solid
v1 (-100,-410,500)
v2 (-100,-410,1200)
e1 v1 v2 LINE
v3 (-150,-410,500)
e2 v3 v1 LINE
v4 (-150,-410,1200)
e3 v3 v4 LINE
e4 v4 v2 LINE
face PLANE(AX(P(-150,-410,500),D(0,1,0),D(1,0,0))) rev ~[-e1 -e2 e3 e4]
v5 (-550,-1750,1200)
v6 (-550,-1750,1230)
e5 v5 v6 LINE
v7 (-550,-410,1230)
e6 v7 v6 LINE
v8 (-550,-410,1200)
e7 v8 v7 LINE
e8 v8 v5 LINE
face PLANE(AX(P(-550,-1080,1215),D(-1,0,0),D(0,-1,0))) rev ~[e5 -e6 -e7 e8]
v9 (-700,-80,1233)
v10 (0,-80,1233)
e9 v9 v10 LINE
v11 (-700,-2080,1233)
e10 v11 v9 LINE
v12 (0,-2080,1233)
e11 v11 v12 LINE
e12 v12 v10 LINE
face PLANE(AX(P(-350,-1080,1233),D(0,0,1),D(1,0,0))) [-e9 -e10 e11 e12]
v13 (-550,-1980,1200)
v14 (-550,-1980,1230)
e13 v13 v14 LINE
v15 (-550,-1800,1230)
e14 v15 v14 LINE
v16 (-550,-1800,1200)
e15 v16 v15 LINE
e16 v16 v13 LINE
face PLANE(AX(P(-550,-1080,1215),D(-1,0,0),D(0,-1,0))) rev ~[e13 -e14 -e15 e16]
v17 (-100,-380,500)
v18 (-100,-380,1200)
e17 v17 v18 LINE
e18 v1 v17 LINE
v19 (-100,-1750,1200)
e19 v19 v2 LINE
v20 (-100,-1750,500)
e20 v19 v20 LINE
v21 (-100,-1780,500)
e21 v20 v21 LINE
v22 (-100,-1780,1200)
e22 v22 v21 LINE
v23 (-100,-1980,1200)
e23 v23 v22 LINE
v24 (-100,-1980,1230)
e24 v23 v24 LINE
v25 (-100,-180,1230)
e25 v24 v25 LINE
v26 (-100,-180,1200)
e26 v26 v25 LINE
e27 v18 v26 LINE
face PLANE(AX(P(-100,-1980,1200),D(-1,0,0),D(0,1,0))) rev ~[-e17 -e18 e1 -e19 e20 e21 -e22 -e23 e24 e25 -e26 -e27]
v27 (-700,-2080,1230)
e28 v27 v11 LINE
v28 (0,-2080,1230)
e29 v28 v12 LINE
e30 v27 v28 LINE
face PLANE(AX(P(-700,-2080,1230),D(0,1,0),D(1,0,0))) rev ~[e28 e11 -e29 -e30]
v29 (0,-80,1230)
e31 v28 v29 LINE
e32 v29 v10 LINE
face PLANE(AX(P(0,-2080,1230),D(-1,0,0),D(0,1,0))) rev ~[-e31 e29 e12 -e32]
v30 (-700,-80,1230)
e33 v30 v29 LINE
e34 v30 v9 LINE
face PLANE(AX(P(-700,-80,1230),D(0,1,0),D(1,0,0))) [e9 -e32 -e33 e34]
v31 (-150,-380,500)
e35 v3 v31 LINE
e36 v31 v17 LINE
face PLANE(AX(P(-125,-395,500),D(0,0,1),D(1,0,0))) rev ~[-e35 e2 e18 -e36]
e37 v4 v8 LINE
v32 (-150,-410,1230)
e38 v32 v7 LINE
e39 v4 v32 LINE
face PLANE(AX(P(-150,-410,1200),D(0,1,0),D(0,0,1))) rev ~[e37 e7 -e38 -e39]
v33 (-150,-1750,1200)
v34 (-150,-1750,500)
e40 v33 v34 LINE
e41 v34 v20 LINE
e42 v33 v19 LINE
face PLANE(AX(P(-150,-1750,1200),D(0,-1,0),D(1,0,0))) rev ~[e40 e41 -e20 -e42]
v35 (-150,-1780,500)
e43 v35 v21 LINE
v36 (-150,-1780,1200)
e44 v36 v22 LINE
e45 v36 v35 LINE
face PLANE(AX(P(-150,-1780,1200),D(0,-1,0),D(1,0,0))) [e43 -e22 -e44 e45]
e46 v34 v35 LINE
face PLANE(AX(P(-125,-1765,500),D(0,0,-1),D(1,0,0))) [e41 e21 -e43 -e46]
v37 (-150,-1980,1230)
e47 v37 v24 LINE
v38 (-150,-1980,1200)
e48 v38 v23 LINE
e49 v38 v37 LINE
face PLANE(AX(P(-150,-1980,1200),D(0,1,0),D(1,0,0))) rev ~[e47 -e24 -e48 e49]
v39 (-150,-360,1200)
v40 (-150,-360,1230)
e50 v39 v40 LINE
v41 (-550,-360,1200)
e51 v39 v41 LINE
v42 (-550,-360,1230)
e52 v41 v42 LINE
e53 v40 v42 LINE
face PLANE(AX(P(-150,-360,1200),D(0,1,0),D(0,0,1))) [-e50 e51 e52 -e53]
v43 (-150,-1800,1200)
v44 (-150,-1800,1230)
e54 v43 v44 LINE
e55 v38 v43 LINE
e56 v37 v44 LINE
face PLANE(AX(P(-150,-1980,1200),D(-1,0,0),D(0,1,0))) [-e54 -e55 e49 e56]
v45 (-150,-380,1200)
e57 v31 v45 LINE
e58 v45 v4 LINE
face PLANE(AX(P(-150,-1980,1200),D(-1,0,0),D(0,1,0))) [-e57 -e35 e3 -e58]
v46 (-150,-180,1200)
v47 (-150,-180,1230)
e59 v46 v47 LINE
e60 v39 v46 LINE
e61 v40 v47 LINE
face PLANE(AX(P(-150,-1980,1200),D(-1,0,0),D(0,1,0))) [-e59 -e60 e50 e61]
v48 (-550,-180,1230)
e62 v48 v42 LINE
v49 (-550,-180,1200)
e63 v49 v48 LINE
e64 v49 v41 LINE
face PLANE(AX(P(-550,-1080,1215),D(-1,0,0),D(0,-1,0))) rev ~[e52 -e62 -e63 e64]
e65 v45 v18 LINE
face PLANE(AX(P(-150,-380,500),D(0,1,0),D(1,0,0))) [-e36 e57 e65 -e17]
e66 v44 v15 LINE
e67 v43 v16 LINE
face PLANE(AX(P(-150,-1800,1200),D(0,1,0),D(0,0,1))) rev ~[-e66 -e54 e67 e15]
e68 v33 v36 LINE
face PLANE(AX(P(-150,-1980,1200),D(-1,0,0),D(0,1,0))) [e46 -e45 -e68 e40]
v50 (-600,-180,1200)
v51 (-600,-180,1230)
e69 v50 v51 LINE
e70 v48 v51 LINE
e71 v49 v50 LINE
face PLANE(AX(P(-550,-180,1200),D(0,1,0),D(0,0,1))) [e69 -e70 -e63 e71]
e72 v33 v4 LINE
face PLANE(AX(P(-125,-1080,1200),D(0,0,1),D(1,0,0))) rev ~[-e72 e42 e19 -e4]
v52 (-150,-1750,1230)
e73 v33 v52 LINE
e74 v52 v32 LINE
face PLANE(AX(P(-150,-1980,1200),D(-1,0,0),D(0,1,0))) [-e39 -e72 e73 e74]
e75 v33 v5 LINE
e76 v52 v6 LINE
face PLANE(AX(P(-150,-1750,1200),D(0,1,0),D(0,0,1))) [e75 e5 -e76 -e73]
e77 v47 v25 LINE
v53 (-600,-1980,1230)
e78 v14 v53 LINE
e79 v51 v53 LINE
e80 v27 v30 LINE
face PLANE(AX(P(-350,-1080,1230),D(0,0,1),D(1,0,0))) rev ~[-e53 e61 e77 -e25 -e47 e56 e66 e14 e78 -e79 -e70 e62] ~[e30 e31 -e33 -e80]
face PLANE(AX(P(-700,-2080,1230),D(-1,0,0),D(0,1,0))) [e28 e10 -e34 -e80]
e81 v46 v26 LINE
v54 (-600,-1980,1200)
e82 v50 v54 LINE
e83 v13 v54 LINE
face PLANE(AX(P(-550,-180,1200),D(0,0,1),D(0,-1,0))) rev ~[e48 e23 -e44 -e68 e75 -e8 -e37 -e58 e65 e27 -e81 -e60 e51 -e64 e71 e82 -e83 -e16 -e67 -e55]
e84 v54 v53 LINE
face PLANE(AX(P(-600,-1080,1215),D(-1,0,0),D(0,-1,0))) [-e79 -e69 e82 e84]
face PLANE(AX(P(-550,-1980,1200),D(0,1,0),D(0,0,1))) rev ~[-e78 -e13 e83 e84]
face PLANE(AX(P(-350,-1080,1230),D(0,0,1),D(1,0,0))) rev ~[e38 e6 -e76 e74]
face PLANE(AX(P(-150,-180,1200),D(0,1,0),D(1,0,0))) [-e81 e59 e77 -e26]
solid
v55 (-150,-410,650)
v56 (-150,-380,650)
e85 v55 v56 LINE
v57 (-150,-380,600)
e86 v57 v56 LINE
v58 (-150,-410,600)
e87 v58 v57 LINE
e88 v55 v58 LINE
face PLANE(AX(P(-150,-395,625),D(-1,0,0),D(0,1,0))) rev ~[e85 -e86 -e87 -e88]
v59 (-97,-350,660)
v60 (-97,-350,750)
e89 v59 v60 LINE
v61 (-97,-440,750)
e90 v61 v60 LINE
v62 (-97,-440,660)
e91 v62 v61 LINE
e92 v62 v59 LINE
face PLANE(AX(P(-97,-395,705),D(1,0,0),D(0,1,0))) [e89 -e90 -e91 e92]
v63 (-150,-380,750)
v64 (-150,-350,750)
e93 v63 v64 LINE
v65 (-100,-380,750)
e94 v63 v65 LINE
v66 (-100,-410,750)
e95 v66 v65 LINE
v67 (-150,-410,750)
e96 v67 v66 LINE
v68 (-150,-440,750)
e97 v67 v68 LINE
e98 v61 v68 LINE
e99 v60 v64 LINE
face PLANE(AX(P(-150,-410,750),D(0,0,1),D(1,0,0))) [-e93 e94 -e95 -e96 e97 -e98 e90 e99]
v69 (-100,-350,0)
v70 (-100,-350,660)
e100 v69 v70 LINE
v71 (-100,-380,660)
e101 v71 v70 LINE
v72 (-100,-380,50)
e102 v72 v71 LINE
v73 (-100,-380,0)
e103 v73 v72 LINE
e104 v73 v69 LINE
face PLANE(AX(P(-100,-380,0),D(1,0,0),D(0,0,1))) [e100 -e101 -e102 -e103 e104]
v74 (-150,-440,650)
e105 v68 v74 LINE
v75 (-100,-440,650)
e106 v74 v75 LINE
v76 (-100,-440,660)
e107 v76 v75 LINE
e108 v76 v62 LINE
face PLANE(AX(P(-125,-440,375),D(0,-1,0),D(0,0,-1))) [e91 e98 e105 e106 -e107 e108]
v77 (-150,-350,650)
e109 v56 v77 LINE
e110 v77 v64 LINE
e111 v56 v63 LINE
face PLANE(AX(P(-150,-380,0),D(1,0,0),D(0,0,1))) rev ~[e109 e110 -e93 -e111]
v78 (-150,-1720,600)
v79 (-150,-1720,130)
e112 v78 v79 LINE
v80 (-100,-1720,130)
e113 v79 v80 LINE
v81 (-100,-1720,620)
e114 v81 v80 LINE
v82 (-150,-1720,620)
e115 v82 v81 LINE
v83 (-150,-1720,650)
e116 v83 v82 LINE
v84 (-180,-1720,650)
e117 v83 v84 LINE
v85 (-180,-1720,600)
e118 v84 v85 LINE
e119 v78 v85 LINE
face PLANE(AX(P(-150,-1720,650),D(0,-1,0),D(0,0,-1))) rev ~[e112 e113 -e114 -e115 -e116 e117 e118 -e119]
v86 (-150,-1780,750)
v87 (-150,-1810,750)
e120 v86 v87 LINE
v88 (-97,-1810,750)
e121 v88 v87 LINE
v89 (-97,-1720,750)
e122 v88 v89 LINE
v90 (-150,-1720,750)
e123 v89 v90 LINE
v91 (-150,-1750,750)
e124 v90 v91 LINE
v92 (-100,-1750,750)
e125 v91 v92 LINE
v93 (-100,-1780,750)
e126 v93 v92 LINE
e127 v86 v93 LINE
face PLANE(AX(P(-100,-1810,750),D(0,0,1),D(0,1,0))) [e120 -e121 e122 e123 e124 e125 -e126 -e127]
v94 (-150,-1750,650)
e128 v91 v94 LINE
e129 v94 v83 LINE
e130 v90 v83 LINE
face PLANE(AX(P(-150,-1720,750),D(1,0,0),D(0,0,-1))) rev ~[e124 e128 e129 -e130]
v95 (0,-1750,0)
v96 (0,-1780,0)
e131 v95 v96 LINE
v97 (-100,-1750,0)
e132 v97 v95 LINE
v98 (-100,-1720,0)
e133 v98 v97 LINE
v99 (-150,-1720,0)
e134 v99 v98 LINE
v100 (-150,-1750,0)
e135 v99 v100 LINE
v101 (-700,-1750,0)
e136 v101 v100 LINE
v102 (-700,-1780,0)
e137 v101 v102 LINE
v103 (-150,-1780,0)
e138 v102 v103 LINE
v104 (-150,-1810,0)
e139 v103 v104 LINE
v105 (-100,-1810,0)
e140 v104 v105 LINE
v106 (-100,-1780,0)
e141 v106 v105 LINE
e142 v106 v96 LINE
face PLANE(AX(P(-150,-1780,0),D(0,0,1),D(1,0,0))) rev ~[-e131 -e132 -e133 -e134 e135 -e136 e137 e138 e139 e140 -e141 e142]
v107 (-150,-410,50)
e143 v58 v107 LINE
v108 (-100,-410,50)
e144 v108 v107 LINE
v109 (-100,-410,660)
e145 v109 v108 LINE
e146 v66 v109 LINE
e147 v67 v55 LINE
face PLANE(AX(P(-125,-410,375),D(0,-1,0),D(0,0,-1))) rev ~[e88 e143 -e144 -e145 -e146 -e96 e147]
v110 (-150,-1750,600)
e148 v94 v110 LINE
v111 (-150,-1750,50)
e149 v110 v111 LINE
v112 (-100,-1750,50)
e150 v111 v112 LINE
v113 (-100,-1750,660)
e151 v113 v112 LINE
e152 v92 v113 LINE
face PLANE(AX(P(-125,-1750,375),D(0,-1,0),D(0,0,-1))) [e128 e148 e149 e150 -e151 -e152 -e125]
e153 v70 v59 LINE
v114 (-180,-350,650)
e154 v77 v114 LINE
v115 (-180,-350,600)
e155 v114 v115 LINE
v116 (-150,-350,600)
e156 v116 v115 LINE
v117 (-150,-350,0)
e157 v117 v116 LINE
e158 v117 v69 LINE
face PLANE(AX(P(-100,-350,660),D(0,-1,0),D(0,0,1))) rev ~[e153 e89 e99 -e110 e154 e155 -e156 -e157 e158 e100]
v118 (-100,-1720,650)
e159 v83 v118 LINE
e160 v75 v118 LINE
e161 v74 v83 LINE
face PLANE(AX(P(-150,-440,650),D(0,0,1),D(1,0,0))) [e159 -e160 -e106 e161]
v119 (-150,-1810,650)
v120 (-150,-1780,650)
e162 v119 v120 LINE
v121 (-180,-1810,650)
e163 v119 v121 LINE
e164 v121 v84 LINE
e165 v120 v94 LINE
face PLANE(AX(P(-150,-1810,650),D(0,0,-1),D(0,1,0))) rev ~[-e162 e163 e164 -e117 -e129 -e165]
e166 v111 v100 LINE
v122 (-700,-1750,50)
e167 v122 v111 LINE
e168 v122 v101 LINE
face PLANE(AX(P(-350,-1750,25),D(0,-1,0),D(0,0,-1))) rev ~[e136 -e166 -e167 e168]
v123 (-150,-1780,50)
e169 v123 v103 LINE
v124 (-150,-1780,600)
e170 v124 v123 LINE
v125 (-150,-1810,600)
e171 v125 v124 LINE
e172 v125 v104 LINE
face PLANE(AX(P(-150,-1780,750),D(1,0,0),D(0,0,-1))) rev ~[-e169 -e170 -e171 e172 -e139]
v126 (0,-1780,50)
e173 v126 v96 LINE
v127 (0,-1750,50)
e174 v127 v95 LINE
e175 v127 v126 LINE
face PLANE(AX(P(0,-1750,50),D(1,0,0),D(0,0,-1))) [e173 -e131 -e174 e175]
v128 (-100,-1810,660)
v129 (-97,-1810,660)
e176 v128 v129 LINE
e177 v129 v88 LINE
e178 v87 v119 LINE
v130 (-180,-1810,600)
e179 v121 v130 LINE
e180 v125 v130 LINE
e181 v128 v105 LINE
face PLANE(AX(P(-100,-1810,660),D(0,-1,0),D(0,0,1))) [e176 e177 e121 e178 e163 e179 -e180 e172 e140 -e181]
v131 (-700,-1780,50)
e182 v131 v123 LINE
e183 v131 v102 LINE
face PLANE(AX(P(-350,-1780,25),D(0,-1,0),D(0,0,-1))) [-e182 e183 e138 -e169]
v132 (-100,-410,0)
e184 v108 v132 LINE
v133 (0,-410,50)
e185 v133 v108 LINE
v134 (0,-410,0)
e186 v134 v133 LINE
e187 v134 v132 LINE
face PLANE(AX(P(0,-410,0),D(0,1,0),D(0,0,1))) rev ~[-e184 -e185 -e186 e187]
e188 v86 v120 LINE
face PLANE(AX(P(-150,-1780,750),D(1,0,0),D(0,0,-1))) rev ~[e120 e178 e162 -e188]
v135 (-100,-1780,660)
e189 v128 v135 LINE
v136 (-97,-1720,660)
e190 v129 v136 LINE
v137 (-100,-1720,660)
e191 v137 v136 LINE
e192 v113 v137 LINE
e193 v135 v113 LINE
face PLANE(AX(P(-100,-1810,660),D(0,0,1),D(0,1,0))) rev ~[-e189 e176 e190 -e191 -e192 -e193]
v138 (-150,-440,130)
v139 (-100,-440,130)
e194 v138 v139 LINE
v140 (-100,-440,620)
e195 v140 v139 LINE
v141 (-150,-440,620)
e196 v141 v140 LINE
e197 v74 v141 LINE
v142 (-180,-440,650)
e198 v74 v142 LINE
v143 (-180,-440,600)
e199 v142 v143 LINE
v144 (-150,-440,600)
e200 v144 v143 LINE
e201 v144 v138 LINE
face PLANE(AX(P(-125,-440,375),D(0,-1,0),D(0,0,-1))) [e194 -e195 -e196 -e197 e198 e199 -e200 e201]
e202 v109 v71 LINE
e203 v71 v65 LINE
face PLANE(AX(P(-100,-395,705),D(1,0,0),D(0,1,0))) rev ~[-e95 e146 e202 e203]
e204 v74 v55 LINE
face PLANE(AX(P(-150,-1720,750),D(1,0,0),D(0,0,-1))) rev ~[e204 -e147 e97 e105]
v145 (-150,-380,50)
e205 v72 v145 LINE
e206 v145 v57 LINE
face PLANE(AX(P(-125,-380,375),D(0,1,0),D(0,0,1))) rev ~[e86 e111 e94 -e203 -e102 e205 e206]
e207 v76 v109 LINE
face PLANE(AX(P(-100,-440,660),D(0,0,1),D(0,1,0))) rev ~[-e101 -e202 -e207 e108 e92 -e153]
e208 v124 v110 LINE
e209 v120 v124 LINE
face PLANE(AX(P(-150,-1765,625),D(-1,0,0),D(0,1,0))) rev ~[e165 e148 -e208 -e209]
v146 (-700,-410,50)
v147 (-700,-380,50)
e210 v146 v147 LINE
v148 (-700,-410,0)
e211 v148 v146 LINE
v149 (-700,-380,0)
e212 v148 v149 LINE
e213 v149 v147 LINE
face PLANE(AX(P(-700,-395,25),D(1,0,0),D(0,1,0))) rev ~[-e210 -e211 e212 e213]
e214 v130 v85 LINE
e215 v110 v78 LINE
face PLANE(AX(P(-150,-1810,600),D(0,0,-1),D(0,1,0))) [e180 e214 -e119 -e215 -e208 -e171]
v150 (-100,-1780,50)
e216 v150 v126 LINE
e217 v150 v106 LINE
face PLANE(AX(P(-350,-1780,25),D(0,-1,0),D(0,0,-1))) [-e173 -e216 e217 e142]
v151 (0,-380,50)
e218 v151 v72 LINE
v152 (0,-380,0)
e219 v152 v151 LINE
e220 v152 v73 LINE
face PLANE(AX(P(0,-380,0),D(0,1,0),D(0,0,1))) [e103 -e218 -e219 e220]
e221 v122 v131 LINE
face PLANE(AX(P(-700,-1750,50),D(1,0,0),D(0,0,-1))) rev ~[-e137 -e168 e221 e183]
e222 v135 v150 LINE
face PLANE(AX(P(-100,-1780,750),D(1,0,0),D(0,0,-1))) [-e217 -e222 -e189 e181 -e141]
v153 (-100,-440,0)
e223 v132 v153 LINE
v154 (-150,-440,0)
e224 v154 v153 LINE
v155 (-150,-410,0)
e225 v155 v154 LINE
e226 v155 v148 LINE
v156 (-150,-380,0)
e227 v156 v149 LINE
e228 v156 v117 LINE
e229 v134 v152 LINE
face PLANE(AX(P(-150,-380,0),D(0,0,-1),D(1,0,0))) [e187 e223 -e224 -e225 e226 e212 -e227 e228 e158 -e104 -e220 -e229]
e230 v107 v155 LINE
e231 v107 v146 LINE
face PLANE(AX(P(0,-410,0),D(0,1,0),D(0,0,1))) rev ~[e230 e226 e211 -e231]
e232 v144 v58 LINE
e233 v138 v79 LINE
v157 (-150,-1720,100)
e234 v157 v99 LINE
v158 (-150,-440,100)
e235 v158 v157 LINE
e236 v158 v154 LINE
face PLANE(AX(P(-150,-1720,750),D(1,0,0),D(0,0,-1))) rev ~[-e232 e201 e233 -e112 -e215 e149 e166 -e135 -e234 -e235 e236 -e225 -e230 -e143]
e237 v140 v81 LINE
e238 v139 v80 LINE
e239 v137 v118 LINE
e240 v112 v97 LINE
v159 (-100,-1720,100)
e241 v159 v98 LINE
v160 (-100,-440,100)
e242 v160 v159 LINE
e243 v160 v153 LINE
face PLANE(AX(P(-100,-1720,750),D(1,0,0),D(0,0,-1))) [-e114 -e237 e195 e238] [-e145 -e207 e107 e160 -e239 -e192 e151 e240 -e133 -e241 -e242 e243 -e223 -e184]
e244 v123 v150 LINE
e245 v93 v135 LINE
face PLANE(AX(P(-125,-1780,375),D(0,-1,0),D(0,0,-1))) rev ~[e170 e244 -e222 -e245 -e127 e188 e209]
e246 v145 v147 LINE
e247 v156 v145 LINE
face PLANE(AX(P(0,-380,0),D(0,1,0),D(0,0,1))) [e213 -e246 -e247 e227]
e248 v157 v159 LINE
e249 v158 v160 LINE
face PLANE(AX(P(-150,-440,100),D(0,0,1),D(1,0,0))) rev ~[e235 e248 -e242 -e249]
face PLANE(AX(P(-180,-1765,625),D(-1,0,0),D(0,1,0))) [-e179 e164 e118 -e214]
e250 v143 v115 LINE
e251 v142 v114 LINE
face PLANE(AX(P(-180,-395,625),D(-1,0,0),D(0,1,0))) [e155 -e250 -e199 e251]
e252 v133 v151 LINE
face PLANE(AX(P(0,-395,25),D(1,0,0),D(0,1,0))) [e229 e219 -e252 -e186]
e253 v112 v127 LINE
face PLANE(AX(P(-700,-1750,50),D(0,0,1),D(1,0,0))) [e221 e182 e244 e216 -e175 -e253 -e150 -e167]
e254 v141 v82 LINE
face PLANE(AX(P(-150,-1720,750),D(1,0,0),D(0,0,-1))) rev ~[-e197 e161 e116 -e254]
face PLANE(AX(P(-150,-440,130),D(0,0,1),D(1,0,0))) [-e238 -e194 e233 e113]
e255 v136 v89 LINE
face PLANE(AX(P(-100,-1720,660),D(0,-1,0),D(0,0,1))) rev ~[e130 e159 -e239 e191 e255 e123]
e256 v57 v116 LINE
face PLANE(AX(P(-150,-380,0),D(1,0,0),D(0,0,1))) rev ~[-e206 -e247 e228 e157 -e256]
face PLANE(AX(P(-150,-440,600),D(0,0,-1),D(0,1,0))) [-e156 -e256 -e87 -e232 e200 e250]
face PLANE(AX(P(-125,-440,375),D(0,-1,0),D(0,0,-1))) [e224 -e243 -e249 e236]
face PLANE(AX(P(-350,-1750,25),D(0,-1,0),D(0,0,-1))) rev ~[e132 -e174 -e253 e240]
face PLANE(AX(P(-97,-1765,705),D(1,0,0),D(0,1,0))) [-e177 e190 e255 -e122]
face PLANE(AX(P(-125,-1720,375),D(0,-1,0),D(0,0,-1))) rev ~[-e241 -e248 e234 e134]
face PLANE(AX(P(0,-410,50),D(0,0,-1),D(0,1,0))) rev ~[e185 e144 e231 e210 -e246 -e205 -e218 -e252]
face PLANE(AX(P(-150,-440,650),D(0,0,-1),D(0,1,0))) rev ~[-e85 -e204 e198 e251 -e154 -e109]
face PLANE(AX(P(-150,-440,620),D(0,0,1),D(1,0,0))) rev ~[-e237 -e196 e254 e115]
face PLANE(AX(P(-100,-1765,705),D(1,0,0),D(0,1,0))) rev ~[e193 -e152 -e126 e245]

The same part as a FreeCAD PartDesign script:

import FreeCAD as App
import Part
import Sketcher

V = App.Vector

doc = App.newDocument("Part")
body = doc.addObject("PartDesign::Body", "Body")

# Sketch on YZ plane
sketch1 = body.newObject("Sketcher::SketchObject", "Sketch")
sketch1.AttachmentSupport = (doc.getObject("YZ_Plane"), [""])
sketch1.MapMode = "FlatFace"
sketch1.addGeometry(Part.LineSegment(V(-410, 50, 0), V(-410, 0, 0)), False)
sketch1.addGeometry(Part.LineSegment(V(-410, 0, 0), V(-380, 0, 0)), False)
sketch1.addGeometry(Part.LineSegment(V(-380, 0, 0), V(-380, 50, 0)), False)
sketch1.addGeometry(Part.LineSegment(V(-380, 50, 0), V(-410, 50, 0)), False)
sketch1.addConstraint(Sketcher.Constraint("Coincident", 0, 2, 1, 1))
sketch1.addConstraint(Sketcher.Constraint("Coincident", 1, 2, 2, 1))
sketch1.addConstraint(Sketcher.Constraint("Coincident", 2, 2, 3, 1))
sketch1.addConstraint(Sketcher.Constraint("Coincident", 3, 2, 0, 1))
sketch1.addConstraint(Sketcher.Constraint("Vertical", 0))
sketch1.addConstraint(Sketcher.Constraint("Horizontal", 1))
sketch1.addConstraint(Sketcher.Constraint("Vertical", 2))
sketch1.addConstraint(Sketcher.Constraint("Horizontal", 3))
sketch1.addConstraint(Sketcher.Constraint("PointOnObject", 0, 2, -1))
sketch1.addConstraint(Sketcher.Constraint("DistanceX", 1, 1, 1, 2, 30.0))
sketch1.addConstraint(Sketcher.Constraint("DistanceY", 0, 2, 0, 1, 50.0))
sketch1.addConstraint(Sketcher.Constraint("DistanceX", 0, 2, -1, 1, 410.0))
pad1 = body.newObject("PartDesign::Pad", "Pad")
pad1.Profile = sketch1
pad1.Length = 700
pad1.Reversed = True

# Sketch on XZ plane
sketch2 = body.newObject("Sketcher::SketchObject", "Sketch001")
sketch2.AttachmentSupport = (doc.getObject("XZ_Plane"), [""])
sketch2.MapMode = "FlatFace"
sketch2.AttachmentOffset = App.Placement(V(0, 0, 410), App.Rotation())
sketch2.addGeometry(Part.LineSegment(V(-100, 750, 0), V(-150, 750, 0)), False)
sketch2.addGeometry(Part.LineSegment(V(-150, 750, 0), V(-150, 0, 0)), False)
sketch2.addGeometry(Part.LineSegment(V(-150, 0, 0), V(-100, 0, 0)), False)
sketch2.addGeometry(Part.LineSegment(V(-100, 0, 0), V(-100, 750, 0)), False)
sketch2.addConstraint(Sketcher.Constraint("Coincident", 0, 2, 1, 1))
sketch2.addConstraint(Sketcher.Constraint("Coincident", 1, 2, 2, 1))
sketch2.addConstraint(Sketcher.Constraint("Coincident", 2, 2, 3, 1))
sketch2.addConstraint(Sketcher.Constraint("Coincident", 3, 2, 0, 1))
sketch2.addConstraint(Sketcher.Constraint("Horizontal", 0))
sketch2.addConstraint(Sketcher.Constraint("Vertical", 1))
sketch2.addConstraint(Sketcher.Constraint("Horizontal", 2))
sketch2.addConstraint(Sketcher.Constraint("Vertical", 3))
sketch2.addConstraint(Sketcher.Constraint("PointOnObject", 1, 2, -1))
sketch2.addConstraint(Sketcher.Constraint("DistanceX", 0, 2, 0, 1, 50.0))
sketch2.addConstraint(Sketcher.Constraint("DistanceY", 1, 2, 1, 1, 750.0))
sketch2.addConstraint(Sketcher.Constraint("DistanceX", 0, 2, -1, 1, 150.0))
pad2 = body.newObject("PartDesign::Pad", "Pad001")
pad2.Profile = sketch2
pad2.Length = 30

# Sketch on XZ plane
sketch3 = body.newObject("Sketcher::SketchObject", "Sketch002")
sketch3.AttachmentSupport = (doc.getObject("XZ_Plane"), [""])
sketch3.MapMode = "FlatFace"
sketch3.AttachmentOffset = App.Placement(V(0, 0, 380), App.Rotation())
sketch3.addGeometry(Part.LineSegment(V(-100, 0, 0), V(-150, 0, 0)), False)
sketch3.addGeometry(Part.LineSegment(V(-150, 0, 0), V(-150, 750, 0)), False)
sketch3.addGeometry(Part.LineSegment(V(-150, 750, 0), V(-100, 750, 0)), False)
sketch3.addGeometry(Part.LineSegment(V(-100, 750, 0), V(-100, 0, 0)), False)
sketch3.addConstraint(Sketcher.Constraint("Coincident", 0, 2, 1, 1))
sketch3.addConstraint(Sketcher.Constraint("Coincident", 1, 2, 2, 1))
sketch3.addConstraint(Sketcher.Constraint("Coincident", 2, 2, 3, 1))
sketch3.addConstraint(Sketcher.Constraint("Coincident", 3, 2, 0, 1))
sketch3.addConstraint(Sketcher.Constraint("Horizontal", 0))
sketch3.addConstraint(Sketcher.Constraint("Vertical", 1))
sketch3.addConstraint(Sketcher.Constraint("Horizontal", 2))
sketch3.addConstraint(Sketcher.Constraint("Vertical", 3))
sketch3.addConstraint(Sketcher.Constraint("PointOnObject", 0, 2, -1))
sketch3.addConstraint(Sketcher.Constraint("DistanceX", 0, 2, 0, 1, 50.0))
sketch3.addConstraint(Sketcher.Constraint("DistanceY", 1, 1, 1, 2, 750.0))
sketch3.addConstraint(Sketcher.Constraint("DistanceX", 0, 2, -1, 1, 150.0))
pad3 = body.newObject("PartDesign::Pad", "Pad002")
pad3.Profile = sketch3
pad3.Length = 30
pad3.Reversed = True

# Sketch on XZ plane
sketch4 = body.newObject("Sketcher::SketchObject", "Sketch003")
sketch4.AttachmentSupport = (doc.getObject("XZ_Plane"), [""])
sketch4.MapMode = "FlatFace"
sketch4.AttachmentOffset = App.Placement(V(0, 0, 440), App.Rotation())
sketch4.addGeometry(Part.LineSegment(V(-100, 130, 0), V(-150, 130, 0)), False)
sketch4.addGeometry(Part.LineSegment(V(-150, 130, 0), V(-150, 100, 0)), False)
sketch4.addGeometry(Part.LineSegment(V(-150, 100, 0), V(-100, 100, 0)), False)
sketch4.addGeometry(Part.LineSegment(V(-100, 100, 0), V(-100, 130, 0)), False)
sketch4.addGeometry(Part.LineSegment(V(-100, 650, 0), V(-150, 650, 0)), False)
sketch4.addGeometry(Part.LineSegment(V(-150, 650, 0), V(-150, 620, 0)), False)
sketch4.addGeometry(Part.LineSegment(V(-150, 620, 0), V(-100, 620, 0)), False)
sketch4.addGeometry(Part.LineSegment(V(-100, 620, 0), V(-100, 650, 0)), False)
sketch4.addConstraint(Sketcher.Constraint("Coincident", 0, 2, 1, 1))
sketch4.addConstraint(Sketcher.Constraint("Coincident", 1, 2, 2, 1))
sketch4.addConstraint(Sketcher.Constraint("Coincident", 2, 2, 3, 1))
sketch4.addConstraint(Sketcher.Constraint("Coincident", 3, 2, 0, 1))
sketch4.addConstraint(Sketcher.Constraint("Coincident", 4, 2, 5, 1))
sketch4.addConstraint(Sketcher.Constraint("Coincident", 5, 2, 6, 1))
sketch4.addConstraint(Sketcher.Constraint("Coincident", 6, 2, 7, 1))
sketch4.addConstraint(Sketcher.Constraint("Coincident", 7, 2, 4, 1))
sketch4.addConstraint(Sketcher.Constraint("Horizontal", 0))
sketch4.addConstraint(Sketcher.Constraint("Vertical", 1))
sketch4.addConstraint(Sketcher.Constraint("Horizontal", 2))
sketch4.addConstraint(Sketcher.Constraint("Vertical", 3))
sketch4.addConstraint(Sketcher.Constraint("Horizontal", 4))
sketch4.addConstraint(Sketcher.Constraint("Vertical", 5))
sketch4.addConstraint(Sketcher.Constraint("Horizontal", 6))
sketch4.addConstraint(Sketcher.Constraint("Vertical", 7))
sketch4.addConstraint(Sketcher.Constraint("Vertical", 1, 2, 4, 2))
sketch4.addConstraint(Sketcher.Constraint("Vertical", 3, 2, 6, 2))
sketch4.addConstraint(Sketcher.Constraint("Equal", 3, 5))
sketch4.addConstraint(Sketcher.Constraint("DistanceX", 0, 2, 0, 1, 50.0))
sketch4.addConstraint(Sketcher.Constraint("DistanceY", 1, 2, 1, 1, 30.0))
sketch4.addConstraint(Sketcher.Constraint("DistanceX", 0, 2, -1, 1, 150.0))
sketch4.addConstraint(Sketcher.Constraint("DistanceY", -1, 1, 0, 2, 130.0))
sketch4.addConstraint(Sketcher.Constraint("DistanceY", -1, 1, 4, 2, 650.0))
pad4 = body.newObject("PartDesign::Pad", "Pad003")
pad4.Profile = sketch4
pad4.Length = 1280

# Sketch on XZ plane
sketch5 = body.newObject("Sketcher::SketchObject", "Sketch004")
sketch5.AttachmentSupport = (doc.getObject("XZ_Plane"), [""])
sketch5.MapMode = "FlatFace"
sketch5.AttachmentOffset = App.Placement(V(0, 0, 1720), App.Rotation())
sketch5.addGeometry(Part.LineSegment(V(-100, 750, 0), V(-150, 750, 0)), False)
sketch5.addGeometry(Part.LineSegment(V(-150, 750, 0), V(-150, 0, 0)), False)
sketch5.addGeometry(Part.LineSegment(V(-150, 0, 0), V(-100, 0, 0)), False)
sketch5.addGeometry(Part.LineSegment(V(-100, 0, 0), V(-100, 750, 0)), False)
sketch5.addConstraint(Sketcher.Constraint("Coincident", 0, 2, 1, 1))
sketch5.addConstraint(Sketcher.Constraint("Coincident", 1, 2, 2, 1))
sketch5.addConstraint(Sketcher.Constraint("Coincident", 2, 2, 3, 1))
sketch5.addConstraint(Sketcher.Constraint("Coincident", 3, 2, 0, 1))
sketch5.addConstraint(Sketcher.Constraint("Horizontal", 0))
sketch5.addConstraint(Sketcher.Constraint("Vertical", 1))
sketch5.addConstraint(Sketcher.Constraint("Horizontal", 2))
sketch5.addConstraint(Sketcher.Constraint("Vertical", 3))
sketch5.addConstraint(Sketcher.Constraint("PointOnObject", 1, 2, -1))
sketch5.addConstraint(Sketcher.Constraint("DistanceX", 0, 2, 0, 1, 50.0))
sketch5.addConstraint(Sketcher.Constraint("DistanceY", 1, 2, 1, 1, 750.0))
sketch5.addConstraint(Sketcher.Constraint("DistanceX", 0, 2, -1, 1, 150.0))
pad5 = body.newObject("PartDesign::Pad", "Pad004")
pad5.Profile = sketch5
pad5.Length = 30

# Sketch on XZ plane
sketch6 = body.newObject("Sketcher::SketchObject", "Sketch005")
sketch6.AttachmentSupport = (doc.getObject("XZ_Plane"), [""])
sketch6.MapMode = "FlatFace"
sketch6.AttachmentOffset = App.Placement(V(0, 0, 1750), App.Rotation())
sketch6.addGeometry(Part.LineSegment(V(0, 50, 0), V(-700, 50, 0)), False)
sketch6.addGeometry(Part.LineSegment(V(-700, 50, 0), V(-700, 0, 0)), False)
sketch6.addGeometry(Part.LineSegment(V(-700, 0, 0), V(0, 0, 0)), False)
sketch6.addGeometry(Part.LineSegment(V(0, 0, 0), V(0, 50, 0)), False)
sketch6.addConstraint(Sketcher.Constraint("Coincident", 0, 2, 1, 1))
sketch6.addConstraint(Sketcher.Constraint("Coincident", 1, 2, 2, 1))
sketch6.addConstraint(Sketcher.Constraint("Coincident", 2, 2, 3, 1))
sketch6.addConstraint(Sketcher.Constraint("Coincident", 3, 2, 0, 1))
sketch6.addConstraint(Sketcher.Constraint("Horizontal", 0))
sketch6.addConstraint(Sketcher.Constraint("Vertical", 1))
sketch6.addConstraint(Sketcher.Constraint("Horizontal", 2))
sketch6.addConstraint(Sketcher.Constraint("Vertical", 3))
sketch6.addConstraint(Sketcher.Constraint("Coincident", 2, 2, -1, 1))
sketch6.addConstraint(Sketcher.Constraint("DistanceX", 0, 2, 0, 1, 700.0))
sketch6.addConstraint(Sketcher.Constraint("DistanceY", 1, 2, 1, 1, 50.0))
pad6 = body.newObject("PartDesign::Pad", "Pad005")
pad6.Profile = sketch6
pad6.Length = 30

# Sketch on XZ plane
sketch7 = body.newObject("Sketcher::SketchObject", "Sketch006")
sketch7.AttachmentSupport = (doc.getObject("XZ_Plane"), [""])
sketch7.MapMode = "FlatFace"
sketch7.AttachmentOffset = App.Placement(V(0, 0, 1780), App.Rotation())
sketch7.addGeometry(Part.LineSegment(V(-100, 750, 0), V(-150, 750, 0)), False)
sketch7.addGeometry(Part.LineSegment(V(-150, 750, 0), V(-150, 0, 0)), False)
sketch7.addGeometry(Part.LineSegment(V(-150, 0, 0), V(-100, 0, 0)), False)
sketch7.addGeometry(Part.LineSegment(V(-100, 0, 0), V(-100, 750, 0)), False)
sketch7.addConstraint(Sketcher.Constraint("Coincident", 0, 2, 1, 1))
sketch7.addConstraint(Sketcher.Constraint("Coincident", 1, 2, 2, 1))
sketch7.addConstraint(Sketcher.Constraint("Coincident", 2, 2, 3, 1))
sketch7.addConstraint(Sketcher.Constraint("Coincident", 3, 2, 0, 1))
sketch7.addConstraint(Sketcher.Constraint("Horizontal", 0))
sketch7.addConstraint(Sketcher.Constraint("Vertical", 1))
sketch7.addConstraint(Sketcher.Constraint("Horizontal", 2))
sketch7.addConstraint(Sketcher.Constraint("Vertical", 3))
sketch7.addConstraint(Sketcher.Constraint("PointOnObject", 1, 2, -1))
sketch7.addConstraint(Sketcher.Constraint("DistanceX", 0, 2, 0, 1, 50.0))
sketch7.addConstraint(Sketcher.Constraint("DistanceY", 1, 2, 1, 1, 750.0))
sketch7.addConstraint(Sketcher.Constraint("DistanceX", 0, 2, -1, 1, 150.0))
pad7 = body.newObject("PartDesign::Pad", "Pad006")
pad7.Profile = sketch7
pad7.Length = 30

# Sketch on YZ plane
sketch8 = body.newObject("Sketcher::SketchObject", "Sketch007")
sketch8.AttachmentSupport = (doc.getObject("YZ_Plane"), [""])
sketch8.MapMode = "FlatFace"
sketch8.AttachmentOffset = App.Placement(V(0, 0, -150), App.Rotation())
sketch8.addGeometry(Part.LineSegment(V(-1810, 600, 0), V(-1810, 650, 0)), False)
sketch8.addGeometry(Part.LineSegment(V(-1810, 650, 0), V(-1720, 650, 0)), False)
sketch8.addGeometry(Part.LineSegment(V(-1720, 650, 0), V(-1720, 600, 0)), False)
sketch8.addGeometry(Part.LineSegment(V(-1720, 600, 0), V(-1810, 600, 0)), False)
sketch8.addGeometry(Part.LineSegment(V(-440, 600, 0), V(-440, 650, 0)), False)
sketch8.addGeometry(Part.LineSegment(V(-440, 650, 0), V(-350, 650, 0)), False)
sketch8.addGeometry(Part.LineSegment(V(-350, 650, 0), V(-350, 600, 0)), False)
sketch8.addGeometry(Part.LineSegment(V(-350, 600, 0), V(-440, 600, 0)), False)
sketch8.addConstraint(Sketcher.Constraint("Coincident", 0, 2, 1, 1))
sketch8.addConstraint(Sketcher.Constraint("Coincident", 1, 2, 2, 1))
sketch8.addConstraint(Sketcher.Constraint("Coincident", 2, 2, 3, 1))
sketch8.addConstraint(Sketcher.Constraint("Coincident", 3, 2, 0, 1))
sketch8.addConstraint(Sketcher.Constraint("Coincident", 4, 2, 5, 1))
sketch8.addConstraint(Sketcher.Constraint("Coincident", 5, 2, 6, 1))
sketch8.addConstraint(Sketcher.Constraint("Coincident", 6, 2, 7, 1))
sketch8.addConstraint(Sketcher.Constraint("Coincident", 7, 2, 4, 1))
sketch8.addConstraint(Sketcher.Constraint("Vertical", 0))
sketch8.addConstraint(Sketcher.Constraint("Horizontal", 1))
sketch8.addConstraint(Sketcher.Constraint("Vertical", 2))
sketch8.addConstraint(Sketcher.Constraint("Horizontal", 3))
sketch8.addConstraint(Sketcher.Constraint("Vertical", 4))
sketch8.addConstraint(Sketcher.Constraint("Horizontal", 5))
sketch8.addConstraint(Sketcher.Constraint("Vertical", 6))
sketch8.addConstraint(Sketcher.Constraint("Horizontal", 7))
sketch8.addConstraint(Sketcher.Constraint("Horizontal", 1, 2, 4, 2))
sketch8.addConstraint(Sketcher.Constraint("Horizontal", 3, 2, 6, 2))
sketch8.addConstraint(Sketcher.Constraint("Equal", 3, 5))
sketch8.addConstraint(Sketcher.Constraint("DistanceX", 1, 1, 1, 2, 90.0))
sketch8.addConstraint(Sketcher.Constraint("DistanceY", 0, 1, 0, 2, 50.0))
sketch8.addConstraint(Sketcher.Constraint("DistanceX", 0, 2, -1, 1, 1810.0))
sketch8.addConstraint(Sketcher.Constraint("DistanceY", -1, 1, 0, 2, 650.0))
sketch8.addConstraint(Sketcher.Constraint("DistanceX", 4, 2, -1, 1, 440.0))
pad8 = body.newObject("PartDesign::Pad", "Pad007")
pad8.Profile = sketch8
pad8.Length = 30
pad8.Reversed = True

# Sketch on YZ plane
sketch9 = body.newObject("Sketcher::SketchObject", "Sketch008")
sketch9.AttachmentSupport = (doc.getObject("YZ_Plane"), [""])
sketch9.MapMode = "FlatFace"
sketch9.AttachmentOffset = App.Placement(V(0, 0, -100), App.Rotation())
sketch9.addGeometry(Part.LineSegment(V(-1810, 750, 0), V(-1810, 660, 0)), False)
sketch9.addGeometry(Part.LineSegment(V(-1810, 660, 0), V(-1720, 660, 0)), False)
sketch9.addGeometry(Part.LineSegment(V(-1720, 660, 0), V(-1720, 750, 0)), False)
sketch9.addGeometry(Part.LineSegment(V(-1720, 750, 0), V(-1810, 750, 0)), False)
sketch9.addGeometry(Part.LineSegment(V(-440, 750, 0), V(-440, 660, 0)), False)
sketch9.addGeometry(Part.LineSegment(V(-440, 660, 0), V(-350, 660, 0)), False)
sketch9.addGeometry(Part.LineSegment(V(-350, 660, 0), V(-350, 750, 0)), False)
sketch9.addGeometry(Part.LineSegment(V(-350, 750, 0), V(-440, 750, 0)), False)
sketch9.addConstraint(Sketcher.Constraint("Coincident", 0, 2, 1, 1))
sketch9.addConstraint(Sketcher.Constraint("Coincident", 1, 2, 2, 1))
sketch9.addConstraint(Sketcher.Constraint("Coincident", 2, 2, 3, 1))
sketch9.addConstraint(Sketcher.Constraint("Coincident", 3, 2, 0, 1))
sketch9.addConstraint(Sketcher.Constraint("Coincident", 4, 2, 5, 1))
sketch9.addConstraint(Sketcher.Constraint("Coincident", 5, 2, 6, 1))
sketch9.addConstraint(Sketcher.Constraint("Coincident", 6, 2, 7, 1))
sketch9.addConstraint(Sketcher.Constraint("Coincident", 7, 2, 4, 1))
sketch9.addConstraint(Sketcher.Constraint("Vertical", 0))
sketch9.addConstraint(Sketcher.Constraint("Horizontal", 1))
sketch9.addConstraint(Sketcher.Constraint("Vertical", 2))
sketch9.addConstraint(Sketcher.Constraint("Horizontal", 3))
sketch9.addConstraint(Sketcher.Constraint("Vertical", 4))
sketch9.addConstraint(Sketcher.Constraint("Horizontal", 5))
sketch9.addConstraint(Sketcher.Constraint("Vertical", 6))
sketch9.addConstraint(Sketcher.Constraint("Horizontal", 7))
sketch9.addConstraint(Sketcher.Constraint("Horizontal", 1, 2, 4, 2))
sketch9.addConstraint(Sketcher.Constraint("Horizontal", 3, 2, 6, 2))
sketch9.addConstraint(Sketcher.Constraint("Equal", 3, 5))
sketch9.addConstraint(Sketcher.Constraint("Equal", 7, 0))
sketch9.addConstraint(Sketcher.Constraint("DistanceX", 1, 1, 1, 2, 90.0))
sketch9.addConstraint(Sketcher.Constraint("DistanceX", 0, 2, -1, 1, 1810.0))
sketch9.addConstraint(Sketcher.Constraint("DistanceY", -1, 1, 0, 2, 660.0))
sketch9.addConstraint(Sketcher.Constraint("DistanceX", 4, 2, -1, 1, 440.0))
pad9 = body.newObject("PartDesign::Pad", "Pad008")
pad9.Profile = sketch9
pad9.Length = 3
body2 = doc.addObject("PartDesign::Body", "Body001")

# Sketch on XY plane
sketch10 = body2.newObject("Sketcher::SketchObject", "Sketch009")
sketch10.AttachmentSupport = (doc.getObject("XY_Plane001"), [""])
sketch10.MapMode = "FlatFace"
sketch10.AttachmentOffset = App.Placement(V(0, 0, 500), App.Rotation())
sketch10.addGeometry(Part.LineSegment(V(-150, -380, 0), V(-150, -410, 0)), False)
sketch10.addGeometry(Part.LineSegment(V(-150, -410, 0), V(-100, -410, 0)), False)
sketch10.addGeometry(Part.LineSegment(V(-100, -410, 0), V(-100, -380, 0)), False)
sketch10.addGeometry(Part.LineSegment(V(-100, -380, 0), V(-150, -380, 0)), False)
sketch10.addConstraint(Sketcher.Constraint("Coincident", 0, 2, 1, 1))
sketch10.addConstraint(Sketcher.Constraint("Coincident", 1, 2, 2, 1))
sketch10.addConstraint(Sketcher.Constraint("Coincident", 2, 2, 3, 1))
sketch10.addConstraint(Sketcher.Constraint("Coincident", 3, 2, 0, 1))
sketch10.addConstraint(Sketcher.Constraint("Vertical", 0))
sketch10.addConstraint(Sketcher.Constraint("Horizontal", 1))
sketch10.addConstraint(Sketcher.Constraint("Vertical", 2))
sketch10.addConstraint(Sketcher.Constraint("Horizontal", 3))
sketch10.addConstraint(Sketcher.Constraint("DistanceX", 1, 1, 1, 2, 50.0))
sketch10.addConstraint(Sketcher.Constraint("DistanceY", 0, 2, 0, 1, 30.0))
sketch10.addConstraint(Sketcher.Constraint("DistanceX", 0, 2, -1, 1, 150.0))
sketch10.addConstraint(Sketcher.Constraint("DistanceY", 0, 2, -1, 1, 410.0))
pad10 = body2.newObject("PartDesign::Pad", "Pad009")
pad10.Profile = sketch10
pad10.Length = 700

# Sketch on XY plane
sketch11 = body2.newObject("Sketcher::SketchObject", "Sketch010")
sketch11.AttachmentSupport = (doc.getObject("XY_Plane001"), [""])
sketch11.MapMode = "FlatFace"
sketch11.AttachmentOffset = App.Placement(V(0, 0, 1200), App.Rotation())
sketch11.addGeometry(Part.LineSegment(V(-150, -180, 0), V(-150, -1980, 0)), False)
sketch11.addGeometry(Part.LineSegment(V(-150, -1980, 0), V(-100, -1980, 0)), False)
sketch11.addGeometry(Part.LineSegment(V(-100, -1980, 0), V(-100, -180, 0)), False)
sketch11.addGeometry(Part.LineSegment(V(-100, -180, 0), V(-150, -180, 0)), False)
sketch11.addConstraint(Sketcher.Constraint("Coincident", 0, 2, 1, 1))
sketch11.addConstraint(Sketcher.Constraint("Coincident", 1, 2, 2, 1))
sketch11.addConstraint(Sketcher.Constraint("Coincident", 2, 2, 3, 1))
sketch11.addConstraint(Sketcher.Constraint("Coincident", 3, 2, 0, 1))
sketch11.addConstraint(Sketcher.Constraint("Vertical", 0))
sketch11.addConstraint(Sketcher.Constraint("Horizontal", 1))
sketch11.addConstraint(Sketcher.Constraint("Vertical", 2))
sketch11.addConstraint(Sketcher.Constraint("Horizontal", 3))
sketch11.addConstraint(Sketcher.Constraint("DistanceX", 1, 1, 1, 2, 50.0))
sketch11.addConstraint(Sketcher.Constraint("DistanceY", 0, 2, 0, 1, 1800.0))
sketch11.addConstraint(Sketcher.Constraint("DistanceX", 0, 2, -1, 1, 150.0))
sketch11.addConstraint(Sketcher.Constraint("DistanceY", 0, 2, -1, 1, 1980.0))
pad11 = body2.newObject("PartDesign::Pad", "Pad010")
pad11.Profile = sketch11
pad11.Length = 30

# Sketch on XY plane
sketch12 = body2.newObject("Sketcher::SketchObject", "Sketch011")
sketch12.AttachmentSupport = (doc.getObject("XY_Plane001"), [""])
sketch12.MapMode = "FlatFace"
sketch12.AttachmentOffset = App.Placement(V(0, 0, 1200), App.Rotation())
sketch12.addGeometry(Part.LineSegment(V(-150, -1780, 0), V(-150, -1750, 0)), False)
sketch12.addGeometry(Part.LineSegment(V(-150, -1750, 0), V(-100, -1750, 0)), False)
sketch12.addGeometry(Part.LineSegment(V(-100, -1750, 0), V(-100, -1780, 0)), False)
sketch12.addGeometry(Part.LineSegment(V(-100, -1780, 0), V(-150, -1780, 0)), False)
sketch12.addConstraint(Sketcher.Constraint("Coincident", 0, 2, 1, 1))
sketch12.addConstraint(Sketcher.Constraint("Coincident", 1, 2, 2, 1))
sketch12.addConstraint(Sketcher.Constraint("Coincident", 2, 2, 3, 1))
sketch12.addConstraint(Sketcher.Constraint("Coincident", 3, 2, 0, 1))
sketch12.addConstraint(Sketcher.Constraint("Vertical", 0))
sketch12.addConstraint(Sketcher.Constraint("Horizontal", 1))
sketch12.addConstraint(Sketcher.Constraint("Vertical", 2))
sketch12.addConstraint(Sketcher.Constraint("Horizontal", 3))
sketch12.addConstraint(Sketcher.Constraint("DistanceX", 1, 1, 1, 2, 50.0))
sketch12.addConstraint(Sketcher.Constraint("DistanceY", 0, 1, 0, 2, 30.0))
sketch12.addConstraint(Sketcher.Constraint("DistanceX", 0, 2, -1, 1, 150.0))
sketch12.addConstraint(Sketcher.Constraint("DistanceY", 0, 2, -1, 1, 1750.0))
pad12 = body2.newObject("PartDesign::Pad", "Pad011")
pad12.Profile = sketch12
pad12.Length = 700
pad12.Reversed = True

# Sketch on YZ plane
sketch13 = body2.newObject("Sketcher::SketchObject", "Sketch012")
sketch13.AttachmentSupport = (doc.getObject("YZ_Plane001"), [""])
sketch13.MapMode = "FlatFace"
sketch13.AttachmentOffset = App.Placement(V(0, 0, -150), App.Rotation())
sketch13.addGeometry(Part.LineSegment(V(-360, 1230, 0), V(-360, 1200, 0)), False)
sketch13.addGeometry(Part.LineSegment(V(-360, 1200, 0), V(-410, 1200, 0)), False)
sketch13.addGeometry(Part.LineSegment(V(-410, 1200, 0), V(-410, 1230, 0)), False)
sketch13.addGeometry(Part.LineSegment(V(-410, 1230, 0), V(-360, 1230, 0)), False)
sketch13.addGeometry(Part.LineSegment(V(-1750, 1230, 0), V(-1750, 1200, 0)), False)
sketch13.addGeometry(Part.LineSegment(V(-1750, 1200, 0), V(-1800, 1200, 0)), False)
sketch13.addGeometry(Part.LineSegment(V(-1800, 1200, 0), V(-1800, 1230, 0)), False)
sketch13.addGeometry(Part.LineSegment(V(-1800, 1230, 0), V(-1750, 1230, 0)), False)
sketch13.addConstraint(Sketcher.Constraint("Coincident", 0, 2, 1, 1))
sketch13.addConstraint(Sketcher.Constraint("Coincident", 1, 2, 2, 1))
sketch13.addConstraint(Sketcher.Constraint("Coincident", 2, 2, 3, 1))
sketch13.addConstraint(Sketcher.Constraint("Coincident", 3, 2, 0, 1))
sketch13.addConstraint(Sketcher.Constraint("Coincident", 4, 2, 5, 1))
sketch13.addConstraint(Sketcher.Constraint("Coincident", 5, 2, 6, 1))
sketch13.addConstraint(Sketcher.Constraint("Coincident", 6, 2, 7, 1))
sketch13.addConstraint(Sketcher.Constraint("Coincident", 7, 2, 4, 1))
sketch13.addConstraint(Sketcher.Constraint("Vertical", 0))
sketch13.addConstraint(Sketcher.Constraint("Horizontal", 1))
sketch13.addConstraint(Sketcher.Constraint("Vertical", 2))
sketch13.addConstraint(Sketcher.Constraint("Horizontal", 3))
sketch13.addConstraint(Sketcher.Constraint("Vertical", 4))
sketch13.addConstraint(Sketcher.Constraint("Horizontal", 5))
sketch13.addConstraint(Sketcher.Constraint("Vertical", 6))
sketch13.addConstraint(Sketcher.Constraint("Horizontal", 7))
sketch13.addConstraint(Sketcher.Constraint("Horizontal", 1, 2, 4, 2))
sketch13.addConstraint(Sketcher.Constraint("Horizontal", 3, 2, 6, 2))
sketch13.addConstraint(Sketcher.Constraint("Equal", 3, 5))
sketch13.addConstraint(Sketcher.Constraint("DistanceX", 1, 2, 1, 1, 50.0))
sketch13.addConstraint(Sketcher.Constraint("DistanceY", 0, 2, 0, 1, 30.0))
sketch13.addConstraint(Sketcher.Constraint("DistanceX", 0, 2, -1, 1, 360.0))
sketch13.addConstraint(Sketcher.Constraint("DistanceY", -1, 1, 0, 2, 1200.0))
sketch13.addConstraint(Sketcher.Constraint("DistanceX", 4, 2, -1, 1, 1750.0))
pad13 = body2.newObject("PartDesign::Pad", "Pad012")
pad13.Profile = sketch13
pad13.Length = 400
pad13.Reversed = True

# Sketch on YZ plane
sketch14 = body2.newObject("Sketcher::SketchObject", "Sketch013")
sketch14.AttachmentSupport = (doc.getObject("YZ_Plane001"), [""])
sketch14.MapMode = "FlatFace"
sketch14.AttachmentOffset = App.Placement(V(0, 0, -550), App.Rotation())
sketch14.addGeometry(Part.LineSegment(V(-180, 1230, 0), V(-180, 1200, 0)), False)
sketch14.addGeometry(Part.LineSegment(V(-180, 1200, 0), V(-1980, 1200, 0)), False)
sketch14.addGeometry(Part.LineSegment(V(-1980, 1200, 0), V(-1980, 1230, 0)), False)
sketch14.addGeometry(Part.LineSegment(V(-1980, 1230, 0), V(-180, 1230, 0)), False)
sketch14.addConstraint(Sketcher.Constraint("Coincident", 0, 2, 1, 1))
sketch14.addConstraint(Sketcher.Constraint("Coincident", 1, 2, 2, 1))
sketch14.addConstraint(Sketcher.Constraint("Coincident", 2, 2, 3, 1))
sketch14.addConstraint(Sketcher.Constraint("Coincident", 3, 2, 0, 1))
sketch14.addConstraint(Sketcher.Constraint("Vertical", 0))
sketch14.addConstraint(Sketcher.Constraint("Horizontal", 1))
sketch14.addConstraint(Sketcher.Constraint("Vertical", 2))
sketch14.addConstraint(Sketcher.Constraint("Horizontal", 3))
sketch14.addConstraint(Sketcher.Constraint("DistanceX", 1, 2, 1, 1, 1800.0))
sketch14.addConstraint(Sketcher.Constraint("DistanceY", 0, 2, 0, 1, 30.0))
sketch14.addConstraint(Sketcher.Constraint("DistanceX", 0, 2, -1, 1, 180.0))
sketch14.addConstraint(Sketcher.Constraint("DistanceY", -1, 1, 0, 2, 1200.0))
pad14 = body2.newObject("PartDesign::Pad", "Pad013")
pad14.Profile = sketch14
pad14.Length = 50
pad14.Reversed = True

# Sketch on XY plane
sketch15 = body2.newObject("Sketcher::SketchObject", "Sketch014")
sketch15.AttachmentSupport = (doc.getObject("XY_Plane001"), [""])
sketch15.MapMode = "FlatFace"
sketch15.AttachmentOffset = App.Placement(V(0, 0, 1230), App.Rotation())
sketch15.addGeometry(Part.LineSegment(V(-700, -80, 0), V(-700, -2080, 0)), False)
sketch15.addGeometry(Part.LineSegment(V(-700, -2080, 0), V(0, -2080, 0)), False)
sketch15.addGeometry(Part.LineSegment(V(0, -2080, 0), V(0, -80, 0)), False)
sketch15.addGeometry(Part.LineSegment(V(0, -80, 0), V(-700, -80, 0)), False)
sketch15.addConstraint(Sketcher.Constraint("Coincident", 0, 2, 1, 1))
sketch15.addConstraint(Sketcher.Constraint("Coincident", 1, 2, 2, 1))
sketch15.addConstraint(Sketcher.Constraint("Coincident", 2, 2, 3, 1))
sketch15.addConstraint(Sketcher.Constraint("Coincident", 3, 2, 0, 1))
sketch15.addConstraint(Sketcher.Constraint("Vertical", 0))
sketch15.addConstraint(Sketcher.Constraint("Horizontal", 1))
sketch15.addConstraint(Sketcher.Constraint("Vertical", 2))
sketch15.addConstraint(Sketcher.Constraint("Horizontal", 3))
sketch15.addConstraint(Sketcher.Constraint("PointOnObject", 1, 2, -2))
sketch15.addConstraint(Sketcher.Constraint("DistanceX", 1, 1, 1, 2, 700.0))
sketch15.addConstraint(Sketcher.Constraint("DistanceY", 0, 2, 0, 1, 2000.0))
sketch15.addConstraint(Sketcher.Constraint("DistanceY", 0, 2, -1, 1, 2080.0))
pad15 = body2.newObject("PartDesign::Pad", "Pad014")
pad15.Profile = sketch15
pad15.Length = 3

doc.recompute()
